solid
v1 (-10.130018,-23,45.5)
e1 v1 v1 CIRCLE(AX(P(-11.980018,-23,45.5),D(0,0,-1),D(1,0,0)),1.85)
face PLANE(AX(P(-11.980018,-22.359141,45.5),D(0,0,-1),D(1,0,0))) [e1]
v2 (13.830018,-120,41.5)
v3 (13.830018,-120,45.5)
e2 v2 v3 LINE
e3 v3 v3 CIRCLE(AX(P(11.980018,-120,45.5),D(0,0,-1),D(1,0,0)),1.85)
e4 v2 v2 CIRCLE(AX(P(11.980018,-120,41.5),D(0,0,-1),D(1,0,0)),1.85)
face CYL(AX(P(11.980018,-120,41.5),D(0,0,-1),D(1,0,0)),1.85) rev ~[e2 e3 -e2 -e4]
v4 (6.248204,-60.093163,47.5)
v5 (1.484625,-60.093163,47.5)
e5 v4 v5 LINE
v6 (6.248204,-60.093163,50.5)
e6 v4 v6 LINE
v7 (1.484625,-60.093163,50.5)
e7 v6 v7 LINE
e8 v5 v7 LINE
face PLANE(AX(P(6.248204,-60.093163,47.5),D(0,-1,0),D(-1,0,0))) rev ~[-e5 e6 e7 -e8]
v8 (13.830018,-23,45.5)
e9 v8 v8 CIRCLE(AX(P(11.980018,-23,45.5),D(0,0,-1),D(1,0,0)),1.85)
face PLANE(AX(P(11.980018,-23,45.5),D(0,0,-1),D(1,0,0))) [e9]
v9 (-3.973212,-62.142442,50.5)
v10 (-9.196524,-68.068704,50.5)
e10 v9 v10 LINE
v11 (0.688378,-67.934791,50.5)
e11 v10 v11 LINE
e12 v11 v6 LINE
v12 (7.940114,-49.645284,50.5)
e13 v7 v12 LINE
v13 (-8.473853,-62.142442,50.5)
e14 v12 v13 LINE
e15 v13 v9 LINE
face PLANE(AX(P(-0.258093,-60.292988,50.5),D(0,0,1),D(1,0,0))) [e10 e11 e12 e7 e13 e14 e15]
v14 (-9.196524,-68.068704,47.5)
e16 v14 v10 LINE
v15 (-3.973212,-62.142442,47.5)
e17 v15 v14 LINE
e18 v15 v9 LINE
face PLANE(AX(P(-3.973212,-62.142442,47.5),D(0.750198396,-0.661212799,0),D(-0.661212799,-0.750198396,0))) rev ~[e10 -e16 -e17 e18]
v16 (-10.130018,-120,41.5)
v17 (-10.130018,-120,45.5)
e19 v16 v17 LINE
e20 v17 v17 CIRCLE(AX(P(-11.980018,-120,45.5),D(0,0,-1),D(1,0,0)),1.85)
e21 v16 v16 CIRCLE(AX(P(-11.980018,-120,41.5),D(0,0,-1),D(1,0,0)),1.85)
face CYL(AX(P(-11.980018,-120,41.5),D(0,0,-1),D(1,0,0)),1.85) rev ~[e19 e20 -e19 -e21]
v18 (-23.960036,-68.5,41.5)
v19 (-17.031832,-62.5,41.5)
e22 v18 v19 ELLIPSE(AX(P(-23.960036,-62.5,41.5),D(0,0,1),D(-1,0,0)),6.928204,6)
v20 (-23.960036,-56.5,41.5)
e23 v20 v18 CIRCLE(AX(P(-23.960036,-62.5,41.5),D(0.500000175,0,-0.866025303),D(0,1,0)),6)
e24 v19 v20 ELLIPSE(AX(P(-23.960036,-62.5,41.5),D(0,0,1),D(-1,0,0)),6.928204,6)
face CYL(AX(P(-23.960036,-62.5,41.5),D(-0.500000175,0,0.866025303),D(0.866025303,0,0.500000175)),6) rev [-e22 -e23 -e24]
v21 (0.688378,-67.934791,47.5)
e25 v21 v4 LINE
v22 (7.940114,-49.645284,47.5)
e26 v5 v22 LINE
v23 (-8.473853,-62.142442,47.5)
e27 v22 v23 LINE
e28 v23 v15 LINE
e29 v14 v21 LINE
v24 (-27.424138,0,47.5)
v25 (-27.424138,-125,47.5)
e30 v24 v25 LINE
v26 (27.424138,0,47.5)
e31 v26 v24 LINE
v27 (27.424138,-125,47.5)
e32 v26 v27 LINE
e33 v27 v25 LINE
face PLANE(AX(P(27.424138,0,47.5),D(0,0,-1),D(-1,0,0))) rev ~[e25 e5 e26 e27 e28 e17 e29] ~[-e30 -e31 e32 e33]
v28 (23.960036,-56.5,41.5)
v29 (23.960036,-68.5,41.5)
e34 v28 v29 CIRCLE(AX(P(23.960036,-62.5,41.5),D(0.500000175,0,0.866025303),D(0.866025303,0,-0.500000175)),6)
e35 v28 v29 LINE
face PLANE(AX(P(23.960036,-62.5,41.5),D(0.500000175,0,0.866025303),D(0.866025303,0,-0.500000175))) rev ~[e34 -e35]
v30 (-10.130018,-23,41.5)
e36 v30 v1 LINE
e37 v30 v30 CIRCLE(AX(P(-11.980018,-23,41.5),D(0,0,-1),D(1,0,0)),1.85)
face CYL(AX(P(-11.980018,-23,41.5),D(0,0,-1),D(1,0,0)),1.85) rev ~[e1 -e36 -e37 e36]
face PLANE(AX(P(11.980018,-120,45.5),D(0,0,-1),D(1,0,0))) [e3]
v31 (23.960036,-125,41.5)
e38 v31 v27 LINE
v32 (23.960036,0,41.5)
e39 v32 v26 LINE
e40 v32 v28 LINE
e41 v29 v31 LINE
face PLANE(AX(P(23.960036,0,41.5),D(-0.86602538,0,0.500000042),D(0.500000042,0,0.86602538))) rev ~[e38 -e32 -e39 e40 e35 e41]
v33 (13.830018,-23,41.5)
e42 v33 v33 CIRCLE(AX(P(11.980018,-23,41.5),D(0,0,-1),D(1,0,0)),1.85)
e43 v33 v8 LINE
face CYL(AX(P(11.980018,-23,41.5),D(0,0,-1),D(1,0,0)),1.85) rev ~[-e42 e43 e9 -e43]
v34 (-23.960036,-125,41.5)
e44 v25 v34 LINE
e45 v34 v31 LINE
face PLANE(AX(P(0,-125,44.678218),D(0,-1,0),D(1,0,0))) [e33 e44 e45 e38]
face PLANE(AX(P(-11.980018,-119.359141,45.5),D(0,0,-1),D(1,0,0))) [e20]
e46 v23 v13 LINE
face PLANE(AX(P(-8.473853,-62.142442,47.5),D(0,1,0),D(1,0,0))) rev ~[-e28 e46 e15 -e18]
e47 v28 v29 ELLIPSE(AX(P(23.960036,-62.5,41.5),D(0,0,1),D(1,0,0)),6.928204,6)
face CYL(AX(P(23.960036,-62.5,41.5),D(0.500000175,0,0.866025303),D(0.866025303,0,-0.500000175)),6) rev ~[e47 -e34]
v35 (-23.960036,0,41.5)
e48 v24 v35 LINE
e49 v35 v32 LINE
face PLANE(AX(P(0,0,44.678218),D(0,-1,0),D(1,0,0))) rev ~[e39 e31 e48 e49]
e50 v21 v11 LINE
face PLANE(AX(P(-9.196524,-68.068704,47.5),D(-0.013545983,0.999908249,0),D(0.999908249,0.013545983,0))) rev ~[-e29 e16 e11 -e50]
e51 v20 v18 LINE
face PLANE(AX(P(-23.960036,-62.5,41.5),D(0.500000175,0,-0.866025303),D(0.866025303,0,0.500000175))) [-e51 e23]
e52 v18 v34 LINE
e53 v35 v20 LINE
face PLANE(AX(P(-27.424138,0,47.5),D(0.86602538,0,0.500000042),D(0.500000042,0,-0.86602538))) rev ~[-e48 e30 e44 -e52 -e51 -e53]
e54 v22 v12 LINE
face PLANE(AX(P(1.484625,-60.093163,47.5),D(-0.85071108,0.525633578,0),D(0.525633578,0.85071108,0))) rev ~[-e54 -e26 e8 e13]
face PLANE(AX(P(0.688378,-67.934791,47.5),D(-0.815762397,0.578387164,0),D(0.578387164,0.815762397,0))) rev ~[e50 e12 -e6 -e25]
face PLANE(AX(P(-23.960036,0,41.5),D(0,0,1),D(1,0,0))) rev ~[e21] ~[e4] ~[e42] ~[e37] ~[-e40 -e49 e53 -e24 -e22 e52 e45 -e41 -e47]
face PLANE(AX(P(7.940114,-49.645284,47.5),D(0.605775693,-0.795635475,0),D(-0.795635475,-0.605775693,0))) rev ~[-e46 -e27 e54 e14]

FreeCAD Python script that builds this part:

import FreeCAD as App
import Part
import Sketcher

V = App.Vector
Q = App.Units.Quantity


def add_polygon(sketch, points):
    """Adds a closed chain of lines whose ends are joined by coincident constraints."""
    first, n = sketch.GeometryCount, len(points)
    for a, b in zip(points, points[1:] + points[:1]):
        sketch.addGeometry(Part.LineSegment(App.Vector(*a, 0), App.Vector(*b, 0)), False)
    for i in range(n):
        sketch.addConstraint(Sketcher.Constraint("Coincident", first + i, 2, first + (i + 1) % n, 1))

doc = App.newDocument("Part")
params = doc.addObject("Spreadsheet::Sheet", "Params")
for row, (alias, value) in enumerate([
    ("pad1_length", "125 mm"),
    ("sketch2_diameter", "3.7 mm"),
    ("pocket1_length", "4 mm"),
    ("pad2_length", "3 mm"),
    ("sketch4_diameter", "12 mm"),
    ("pocket2_length", "25 mm"),
    ("sketch5_diameter", "12 mm"),
    ("pocket3_length", "25 mm"),
], start=1):
    params.set(f"A{row}", alias)
    params.set(f"B{row}", "=" + value)
    params.setAlias(f"B{row}", alias)

body = doc.addObject("PartDesign::Body", "Body")

sketch1 = body.newObject("Sketcher::SketchObject", "Sketch")
sketch1.AttachmentSupport = (doc.getObject("XZ_Plane"), [""])
sketch1.MapMode = "FlatFace"
add_polygon(sketch1, [(27, 48), (-27, 48), (-24, 42), (24, 42)])
sketch1.addConstraint(Sketcher.Constraint("Horizontal", 0))
sketch1.addConstraint(Sketcher.Constraint("Horizontal", 2))
sketch1.addConstraint(Sketcher.Constraint("Equal", 1, 3))
sketch1.addConstraint(Sketcher.Constraint("Angle", 1, Q("-59.999997 deg")))
sketch1.addConstraint(Sketcher.Constraint("DistanceY", 1, 2, 0, 2, Q("6 mm")))
sketch1.addConstraint(Sketcher.Constraint("DistanceY", -1, 1, 0, 2, Q("47.5 mm")))
sketch1.addConstraint(Sketcher.Constraint("DistanceX", 2, 1, 2, 2, Q("47.920072 mm")))
sketch1.addConstraint(Sketcher.Constraint("DistanceX", 0, 2, -1, 1, Q("27.424138 mm")))
pad1 = body.newObject("PartDesign::Pad", "Pad")
pad1.Profile = sketch1
pad1.setExpression("Length", "Params.pad1_length")

sketch2 = body.newObject("Sketcher::SketchObject", "Sketch001")
sketch2.AttachmentSupport = (doc.getObject("XY_Plane"), [""])
sketch2.MapMode = "FlatFace"
sketch2.AttachmentOffset = App.Placement(V(0, 0, 41.5), App.Rotation())
sketch2.addGeometry(Part.Circle(V(-12, -120, 0), V(0, 0, 1), 1.9), False)
sketch2.addGeometry(Part.Circle(V(12, -120, 0), V(0, 0, 1), 1.9), False)
sketch2.addGeometry(Part.Circle(V(-12, -23, 0), V(0, 0, 1), 1.9), False)
sketch2.addGeometry(Part.Circle(V(12, -23, 0), V(0, 0, 1), 1.9), False)
sketch2.addConstraint(Sketcher.Constraint("Equal", 0, 1))
sketch2.addConstraint(Sketcher.Constraint("Equal", 1, 2))
sketch2.addConstraint(Sketcher.Constraint("Equal", 2, 3))
sketch2.addConstraint(Sketcher.Constraint("Symmetric", 0, 3, 1, 3, -2))
sketch2.addConstraint(Sketcher.Constraint("Symmetric", 2, 3, 3, 3, -2))
sketch2.addConstraint(Sketcher.Constraint("Vertical", 0, 3, 2, 3))
sketch2.addConstraint(Sketcher.Constraint("Diameter", 0, Q("3.7 mm")))
sketch2.addConstraint(Sketcher.Constraint("DistanceY", 0, 3, -1, 1, Q("120 mm")))
sketch2.addConstraint(Sketcher.Constraint("DistanceY", 2, 3, -1, 1, Q("23 mm")))
sketch2.addConstraint(Sketcher.Constraint("DistanceX", 0, 3, -1, 1, Q("11.980018 mm")))
sketch2.setExpression("Constraints[6]", "Params.sketch2_diameter")
pocket1 = body.newObject("PartDesign::Pocket", "Pocket")
pocket1.Profile = sketch2
pocket1.setExpression("Length", "Params.pocket1_length")
pocket1.Reversed = True

sketch3 = body.newObject("Sketcher::SketchObject", "Sketch002")
sketch3.AttachmentSupport = (doc.getObject("XY_Plane"), [""])
sketch3.MapMode = "FlatFace"
sketch3.AttachmentOffset = App.Placement(V(0, 0, 47.5), App.Rotation())
add_polygon(sketch3, [(-4, -62.1), (-9.2, -68.1), (0.7, -67.9), (6.2, -60.1), (1.5, -60.1), (7.9, -49.6), (-8.5, -62.1)])
sketch3.addConstraint(Sketcher.Constraint("Horizontal", 3))
sketch3.addConstraint(Sketcher.Constraint("Horizontal", 6))
sketch3.addConstraint(Sketcher.Constraint("DistanceX", 3, 2, 3, 1, Q("4.763579 mm")))
sketch3.addConstraint(Sketcher.Constraint("DistanceX", 6, 1, 6, 2, Q("4.500641 mm")))
sketch3.addConstraint(Sketcher.Constraint("Distance", 1, Q("9.885809 mm")))
sketch3.addConstraint(Sketcher.Constraint("Distance", 4, Q("12.281348 mm")))
sketch3.addConstraint(Sketcher.Constraint("Distance", 5, Q("20.630009 mm")))
sketch3.addConstraint(Sketcher.Constraint("DistanceX", -1, 1, 1, 2, Q("0.688378 mm")))
sketch3.addConstraint(Sketcher.Constraint("DistanceY", 1, 2, -1, 1, Q("67.934791 mm")))
sketch3.addConstraint(Sketcher.Constraint("DistanceY", 1, 2, 2, 2, Q("7.841628 mm")))
sketch3.addConstraint(Sketcher.Constraint("DistanceX", 0, 2, 2, 2, Q("15.444728 mm")))
sketch3.addConstraint(Sketcher.Constraint("DistanceY", 0, 2, 2, 2, Q("7.975541 mm")))
sketch3.addConstraint(Sketcher.Constraint("DistanceX", 2, 2, 4, 2, Q("1.69191 mm")))
sketch3.addConstraint(Sketcher.Constraint("DistanceX", 0, 2, 5, 2, Q("0.722671 mm")))
pad2 = body.newObject("PartDesign::Pad", "Pad001")
pad2.Profile = sketch3
pad2.setExpression("Length", "Params.pad2_length")

sketch4 = body.newObject("Sketcher::SketchObject", "Sketch003")
sketch4.Placement = App.Placement(V(-23.960036, 0, 41.5), App.Rotation(V(0.866025303, 0, 0.500000175), V(0, -1, 0), V(0.500000175, 0, -0.866025303), "ZXY"))
sketch4.addGeometry(Part.Circle(V(0, 63, 0), V(0, 0, 1), 6), False)
sketch4.addConstraint(Sketcher.Constraint("PointOnObject", 0, 3, -2))
sketch4.addConstraint(Sketcher.Constraint("Diameter", 0, Q("12 mm")))
sketch4.addConstraint(Sketcher.Constraint("DistanceY", -1, 1, 0, 3, Q("62.5 mm")))
sketch4.setExpression("Constraints[1]", "Params.sketch4_diameter")
pocket2 = body.newObject("PartDesign::Pocket", "Pocket001")
pocket2.Profile = sketch4
pocket2.setExpression("Length", "Params.pocket2_length")
pocket2.Reversed = True

sketch5 = body.newObject("Sketcher::SketchObject", "Sketch004")
sketch5.Placement = App.Placement(V(23.960036, 0, 41.5), App.Rotation(V(0.866025303, 0, -0.500000175), V(0, 1, 0), V(0.500000175, 0, 0.866025303), "ZXY"))
sketch5.addGeometry(Part.Circle(V(0, -63, 0), V(0, 0, 1), 6), False)
sketch5.addConstraint(Sketcher.Constraint("PointOnObject", 0, 3, -2))
sketch5.addConstraint(Sketcher.Constraint("Diameter", 0, Q("12 mm")))
sketch5.addConstraint(Sketcher.Constraint("DistanceY", 0, 3, -1, 1, Q("62.5 mm")))
sketch5.setExpression("Constraints[1]", "Params.sketch5_diameter")
pocket3 = body.newObject("PartDesign::Pocket", "Pocket002")
pocket3.Profile = sketch5
pocket3.setExpression("Length", "Params.pocket3_length")

doc.recompute()
